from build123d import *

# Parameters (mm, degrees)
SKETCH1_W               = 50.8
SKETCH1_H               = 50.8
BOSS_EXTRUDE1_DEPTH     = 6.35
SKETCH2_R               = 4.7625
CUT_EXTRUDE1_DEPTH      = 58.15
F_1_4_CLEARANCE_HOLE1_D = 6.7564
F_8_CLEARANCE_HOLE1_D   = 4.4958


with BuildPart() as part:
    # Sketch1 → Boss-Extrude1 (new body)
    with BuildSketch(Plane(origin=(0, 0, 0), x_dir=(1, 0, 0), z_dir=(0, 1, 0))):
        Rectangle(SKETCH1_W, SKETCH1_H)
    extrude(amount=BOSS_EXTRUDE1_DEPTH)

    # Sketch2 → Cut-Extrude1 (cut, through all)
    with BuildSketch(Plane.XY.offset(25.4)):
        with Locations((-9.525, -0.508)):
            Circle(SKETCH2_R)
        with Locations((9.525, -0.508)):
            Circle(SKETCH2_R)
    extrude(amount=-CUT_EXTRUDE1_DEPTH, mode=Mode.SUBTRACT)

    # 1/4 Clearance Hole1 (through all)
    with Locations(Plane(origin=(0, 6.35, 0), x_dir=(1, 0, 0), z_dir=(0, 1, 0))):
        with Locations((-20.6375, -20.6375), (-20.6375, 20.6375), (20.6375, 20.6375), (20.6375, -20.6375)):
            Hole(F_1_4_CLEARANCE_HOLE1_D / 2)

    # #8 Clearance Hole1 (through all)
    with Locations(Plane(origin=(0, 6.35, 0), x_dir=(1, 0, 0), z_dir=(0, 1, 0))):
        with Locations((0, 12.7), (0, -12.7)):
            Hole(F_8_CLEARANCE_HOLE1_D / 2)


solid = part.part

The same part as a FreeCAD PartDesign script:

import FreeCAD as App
import Part
import Sketcher
from FreeCAD import Vector
Q = App.Units.Quantity


def add_polygon(sketch, points):
    """Adds a closed chain of lines whose ends are joined by coincident constraints."""
    first, n = sketch.GeometryCount, len(points)
    for a, b in zip(points, points[1:] + points[:1]):
        sketch.addGeometry(Part.LineSegment(App.Vector(*a, 0), App.Vector(*b, 0)), False)
    for i in range(n):
        sketch.addConstraint(Sketcher.Constraint("Coincident", first + i, 2, first + (i + 1) % n, 1))

doc = App.newDocument("Part")
body = doc.addObject("PartDesign::Body", "Body")

sketch1 = body.newObject("Sketcher::SketchObject", "Sketch")
sketch1.AttachmentSupport = (doc.getObject("XZ_Plane"), [""])
sketch1.MapMode = "FlatFace"
add_polygon(sketch1, [(-25.4, -25.4), (-25.4, 25.4), (25.4, 25.4), (25.4, -25.4)])
sketch1.addConstraint([
    Sketcher.Constraint("Vertical", 0),
    Sketcher.Constraint("Horizontal", 1),
    Sketcher.Constraint("Vertical", 2),
    Sketcher.Constraint("Horizontal", 3),
    Sketcher.Constraint("Symmetric", 0, 2, 2, 2, -1, 1),
    Sketcher.Constraint("Equal", 3, 0),
    Sketcher.Constraint("DistanceX", 1, 1, 1, 2, Q("2 in")),
])
pad1 = body.newObject("PartDesign::Pad", "Pad")
pad1.Profile = sketch1
pad1.Length = Q("0.25 in")
pad1.Reversed = True

sketch2 = body.newObject("Sketcher::SketchObject", "Sketch001")
sketch2.AttachmentSupport = (doc.getObject("XY_Plane"), [""])
sketch2.MapMode = "FlatFace"
sketch2.AttachmentOffset = App.Placement(Vector(0, 0, 1 * 25.4), App.Rotation())
sketch2.addGeometry([
    Part.Circle(Vector(-9.525, -0.508, 0), Vector(0, 0, 1), 4.7625),
    Part.Circle(Vector(9.525, -0.508, 0), Vector(0, 0, 1), 4.7625),
], False)
sketch2.addConstraint([
    Sketcher.Constraint("Equal", 0, 1),
    Sketcher.Constraint("Symmetric", 0, 3, 1, 3, -2),
    Sketcher.Constraint("Diameter", 0, Q("0.375 in")),
    Sketcher.Constraint("DistanceY", 0, 3, -1, 1, Q("0.02 in")),
    Sketcher.Constraint("DistanceX", 0, 3, 1, 3, Q("0.75 in")),
])
pocket1 = body.newObject("PartDesign::Pocket", "Pocket")
pocket1.Profile = sketch2
pocket1.Type = "ThroughAll"

sketch3 = body.newObject("Sketcher::SketchObject", "Sketch002")
sketch3.AttachmentSupport = (doc.getObject("XZ_Plane"), [""])
sketch3.MapMode = "FlatFace"
sketch3.AttachmentOffset = App.Placement(Vector(0, 0, -0.25 * 25.4), App.Rotation())
sketch3.addGeometry([
    Part.Circle(Vector(-20.6375, 20.6375, 0), Vector(0, 0, 1), 3.3782),
    Part.Circle(Vector(-20.6375, -20.6375, 0), Vector(0, 0, 1), 3.3782),
    Part.Circle(Vector(20.6375, -20.6375, 0), Vector(0, 0, 1), 3.3782),
    Part.Circle(Vector(20.6375, 20.6375, 0), Vector(0, 0, 1), 3.3782),
], False)
sketch3.addConstraint([
    Sketcher.Constraint("Equal", 0, 1),
    Sketcher.Constraint("Equal", 1, 2),
    Sketcher.Constraint("Equal", 2, 3),
    Sketcher.Constraint("Symmetric", 0, 3, 2, 3, -1, 1),
    Sketcher.Constraint("Symmetric", 1, 3, 3, 3, -1, 1),
    Sketcher.Constraint("Symmetric", 1, 3, 2, 3, -2),
    Sketcher.Constraint("Diameter", 0, Q("0.266 in")),
    Sketcher.Constraint("DistanceX", 0, 3, -1, 1, Q("0.8125 in")),
    Sketcher.Constraint("DistanceY", -1, 1, 0, 3, Q("0.8125 in")),
])
doc.recompute()
hole = body.newObject("PartDesign::Hole", "Hole")
hole.Profile = sketch3
hole.ThreadType = "None"
hole.Diameter = Q("0.266 in")
hole.DepthType = "ThroughAll"
hole.Reversed = True

sketch4 = body.newObject("Sketcher::SketchObject", "Sketch003")
sketch4.AttachmentSupport = (doc.getObject("XZ_Plane"), [""])
sketch4.MapMode = "FlatFace"
sketch4.AttachmentOffset = App.Placement(Vector(0, 0, -0.25 * 25.4), App.Rotation())
sketch4.addGeometry([
    Part.Circle(Vector(0, -12.7, 0), Vector(0, 0, 1), 2.2479),
    Part.Circle(Vector(0, 12.7, 0), Vector(0, 0, 1), 2.2479),
], False)
sketch4.addConstraint([
    Sketcher.Constraint("Equal", 0, 1),
    Sketcher.Constraint("Symmetric", 0, 3, 1, 3, -1, 1),
    Sketcher.Constraint("PointOnObject", 0, 3, -2),
    Sketcher.Constraint("Diameter", 0, Q("0.177 in")),
    Sketcher.Constraint("DistanceY", 0, 3, 1, 3, Q("1 in")),
])
doc.recompute()
hole2 = body.newObject("PartDesign::Hole", "Hole001")
hole2.Profile = sketch4
hole2.ThreadType = "None"
hole2.Diameter = Q("0.177 in")
hole2.DepthType = "ThroughAll"
hole2.Reversed = True

doc.recompute()
